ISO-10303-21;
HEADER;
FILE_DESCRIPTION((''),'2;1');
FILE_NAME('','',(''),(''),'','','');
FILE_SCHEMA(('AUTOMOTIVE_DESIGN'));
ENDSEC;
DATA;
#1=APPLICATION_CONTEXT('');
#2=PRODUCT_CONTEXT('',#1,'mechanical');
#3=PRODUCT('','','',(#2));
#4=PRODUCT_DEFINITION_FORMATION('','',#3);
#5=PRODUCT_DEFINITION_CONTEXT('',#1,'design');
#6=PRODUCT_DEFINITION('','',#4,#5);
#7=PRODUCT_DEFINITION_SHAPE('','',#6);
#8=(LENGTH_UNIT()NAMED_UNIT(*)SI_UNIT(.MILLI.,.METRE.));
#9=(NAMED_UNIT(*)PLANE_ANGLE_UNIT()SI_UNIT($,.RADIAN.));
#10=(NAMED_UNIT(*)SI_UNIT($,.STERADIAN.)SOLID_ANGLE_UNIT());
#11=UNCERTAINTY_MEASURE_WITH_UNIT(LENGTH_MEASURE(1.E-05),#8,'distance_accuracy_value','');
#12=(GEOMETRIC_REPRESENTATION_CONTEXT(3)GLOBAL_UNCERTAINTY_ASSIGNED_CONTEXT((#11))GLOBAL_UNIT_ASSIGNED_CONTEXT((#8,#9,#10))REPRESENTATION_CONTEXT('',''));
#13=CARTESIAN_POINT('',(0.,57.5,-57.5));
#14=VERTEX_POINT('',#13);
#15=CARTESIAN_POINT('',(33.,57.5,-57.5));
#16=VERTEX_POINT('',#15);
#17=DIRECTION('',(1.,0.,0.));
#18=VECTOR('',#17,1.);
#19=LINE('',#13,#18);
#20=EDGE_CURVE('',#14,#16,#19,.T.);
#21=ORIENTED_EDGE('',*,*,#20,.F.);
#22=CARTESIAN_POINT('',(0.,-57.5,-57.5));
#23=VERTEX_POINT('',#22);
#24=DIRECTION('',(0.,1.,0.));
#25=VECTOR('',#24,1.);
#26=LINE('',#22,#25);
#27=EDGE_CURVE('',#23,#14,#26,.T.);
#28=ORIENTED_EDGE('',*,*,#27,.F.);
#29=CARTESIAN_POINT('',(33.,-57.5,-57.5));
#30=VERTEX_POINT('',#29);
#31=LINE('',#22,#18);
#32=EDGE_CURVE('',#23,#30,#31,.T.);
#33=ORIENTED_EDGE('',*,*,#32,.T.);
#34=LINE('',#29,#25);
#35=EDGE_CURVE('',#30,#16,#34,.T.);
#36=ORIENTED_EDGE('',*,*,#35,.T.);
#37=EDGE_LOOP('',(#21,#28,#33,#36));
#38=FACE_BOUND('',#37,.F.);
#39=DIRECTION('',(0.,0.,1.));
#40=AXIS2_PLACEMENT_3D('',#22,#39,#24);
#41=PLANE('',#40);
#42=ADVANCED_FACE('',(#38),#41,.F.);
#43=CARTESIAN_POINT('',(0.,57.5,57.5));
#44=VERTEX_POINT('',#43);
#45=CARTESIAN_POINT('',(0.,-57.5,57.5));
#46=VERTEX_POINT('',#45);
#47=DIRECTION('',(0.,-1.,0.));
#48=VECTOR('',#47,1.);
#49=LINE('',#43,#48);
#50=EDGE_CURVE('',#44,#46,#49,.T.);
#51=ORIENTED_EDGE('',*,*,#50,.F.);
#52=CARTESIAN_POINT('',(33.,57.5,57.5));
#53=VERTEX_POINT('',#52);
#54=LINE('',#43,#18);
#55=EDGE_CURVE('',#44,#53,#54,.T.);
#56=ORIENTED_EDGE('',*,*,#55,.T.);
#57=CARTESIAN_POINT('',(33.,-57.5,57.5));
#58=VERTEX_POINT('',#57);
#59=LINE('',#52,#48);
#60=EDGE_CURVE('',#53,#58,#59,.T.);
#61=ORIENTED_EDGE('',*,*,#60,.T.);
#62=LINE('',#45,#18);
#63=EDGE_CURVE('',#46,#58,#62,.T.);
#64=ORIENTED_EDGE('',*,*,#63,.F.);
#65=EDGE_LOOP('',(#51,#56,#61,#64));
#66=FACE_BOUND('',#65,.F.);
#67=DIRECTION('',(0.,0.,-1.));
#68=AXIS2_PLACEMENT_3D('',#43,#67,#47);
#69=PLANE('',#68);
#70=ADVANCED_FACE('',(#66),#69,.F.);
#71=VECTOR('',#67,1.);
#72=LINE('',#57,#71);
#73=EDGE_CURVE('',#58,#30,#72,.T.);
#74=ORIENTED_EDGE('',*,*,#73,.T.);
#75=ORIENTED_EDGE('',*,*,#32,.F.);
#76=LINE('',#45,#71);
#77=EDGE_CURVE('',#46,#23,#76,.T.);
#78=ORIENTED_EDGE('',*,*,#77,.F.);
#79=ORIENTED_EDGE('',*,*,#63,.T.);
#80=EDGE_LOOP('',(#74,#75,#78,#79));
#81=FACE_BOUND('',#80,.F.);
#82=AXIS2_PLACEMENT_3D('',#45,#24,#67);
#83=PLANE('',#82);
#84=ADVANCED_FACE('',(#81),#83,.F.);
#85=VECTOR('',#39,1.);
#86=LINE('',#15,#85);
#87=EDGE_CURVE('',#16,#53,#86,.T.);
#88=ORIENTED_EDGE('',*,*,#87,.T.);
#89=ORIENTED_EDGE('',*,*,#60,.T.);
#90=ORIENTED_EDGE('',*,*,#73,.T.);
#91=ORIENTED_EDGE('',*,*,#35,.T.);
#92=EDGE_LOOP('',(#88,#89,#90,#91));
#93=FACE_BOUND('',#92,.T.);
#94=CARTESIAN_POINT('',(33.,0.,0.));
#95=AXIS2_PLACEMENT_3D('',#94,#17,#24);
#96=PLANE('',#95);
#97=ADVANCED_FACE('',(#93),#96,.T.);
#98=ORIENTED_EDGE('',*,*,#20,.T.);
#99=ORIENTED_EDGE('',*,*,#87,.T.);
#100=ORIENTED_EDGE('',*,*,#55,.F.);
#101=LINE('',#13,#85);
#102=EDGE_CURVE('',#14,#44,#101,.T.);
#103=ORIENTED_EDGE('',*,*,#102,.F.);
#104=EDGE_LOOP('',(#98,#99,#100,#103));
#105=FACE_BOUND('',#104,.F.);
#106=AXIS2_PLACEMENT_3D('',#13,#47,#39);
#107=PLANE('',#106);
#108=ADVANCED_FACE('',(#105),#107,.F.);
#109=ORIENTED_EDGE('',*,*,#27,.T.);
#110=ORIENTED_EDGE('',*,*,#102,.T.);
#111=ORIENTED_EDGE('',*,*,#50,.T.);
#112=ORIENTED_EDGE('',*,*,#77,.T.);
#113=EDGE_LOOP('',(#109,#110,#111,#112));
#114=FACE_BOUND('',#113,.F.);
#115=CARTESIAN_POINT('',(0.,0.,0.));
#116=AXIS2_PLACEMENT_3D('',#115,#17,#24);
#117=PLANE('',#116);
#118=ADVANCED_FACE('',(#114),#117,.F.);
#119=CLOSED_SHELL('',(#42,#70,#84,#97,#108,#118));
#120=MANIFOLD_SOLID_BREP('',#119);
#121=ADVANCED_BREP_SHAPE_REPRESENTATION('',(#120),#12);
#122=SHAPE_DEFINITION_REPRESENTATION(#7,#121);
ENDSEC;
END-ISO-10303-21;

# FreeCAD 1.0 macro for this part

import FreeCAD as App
import Part
import Sketcher

V = App.Vector

doc = App.newDocument("Part")
params = doc.addObject("Spreadsheet::Sheet", "Params")
for row, (alias, value) in enumerate([
    ("sketch1_width", "115 mm"),
    ("pad1_length", "33 mm"),
], start=1):
    params.set(f"A{row}", alias)
    params.set(f"B{row}", "=" + value)
    params.setAlias(f"B{row}", alias)

body = doc.addObject("PartDesign::Body", "Body")

# Sketch on YZ plane
sketch1 = body.newObject("Sketcher::SketchObject", "Sketch")
sketch1.AttachmentSupport = (doc.getObject("YZ_Plane"), [""])
sketch1.MapMode = "FlatFace"
sketch1.addGeometry([
    Part.LineSegment(V(-57.5, 57.5, 0), V(-57.5, -57.5, 0)),
    Part.LineSegment(V(-57.5, -57.5, 0), V(57.5, -57.5, 0)),
    Part.LineSegment(V(57.5, -57.5, 0), V(57.5, 57.5, 0)),
    Part.LineSegment(V(57.5, 57.5, 0), V(-57.5, 57.5, 0)),
], False)
sketch1.addConstraint([
    Sketcher.Constraint("Coincident", 0, 2, 1, 1),
    Sketcher.Constraint("Coincident", 1, 2, 2, 1),
    Sketcher.Constraint("Coincident", 2, 2, 3, 1),
    Sketcher.Constraint("Coincident", 3, 2, 0, 1),
    Sketcher.Constraint("Vertical", 0),
    Sketcher.Constraint("Horizontal", 1),
    Sketcher.Constraint("Vertical", 2),
    Sketcher.Constraint("Horizontal", 3),
    Sketcher.Constraint("Symmetric", 0, 2, 2, 2, -1, 1),
    Sketcher.Constraint("Equal", 3, 0),
    Sketcher.Constraint("DistanceX", 1, 1, 1, 2, 115.0),
])
sketch1.setExpression("Constraints[10]", "Params.sketch1_width")
pad1 = body.newObject("PartDesign::Pad", "Pad")
pad1.Profile = sketch1
pad1.setExpression("Length", "Params.pad1_length")

doc.recompute()
